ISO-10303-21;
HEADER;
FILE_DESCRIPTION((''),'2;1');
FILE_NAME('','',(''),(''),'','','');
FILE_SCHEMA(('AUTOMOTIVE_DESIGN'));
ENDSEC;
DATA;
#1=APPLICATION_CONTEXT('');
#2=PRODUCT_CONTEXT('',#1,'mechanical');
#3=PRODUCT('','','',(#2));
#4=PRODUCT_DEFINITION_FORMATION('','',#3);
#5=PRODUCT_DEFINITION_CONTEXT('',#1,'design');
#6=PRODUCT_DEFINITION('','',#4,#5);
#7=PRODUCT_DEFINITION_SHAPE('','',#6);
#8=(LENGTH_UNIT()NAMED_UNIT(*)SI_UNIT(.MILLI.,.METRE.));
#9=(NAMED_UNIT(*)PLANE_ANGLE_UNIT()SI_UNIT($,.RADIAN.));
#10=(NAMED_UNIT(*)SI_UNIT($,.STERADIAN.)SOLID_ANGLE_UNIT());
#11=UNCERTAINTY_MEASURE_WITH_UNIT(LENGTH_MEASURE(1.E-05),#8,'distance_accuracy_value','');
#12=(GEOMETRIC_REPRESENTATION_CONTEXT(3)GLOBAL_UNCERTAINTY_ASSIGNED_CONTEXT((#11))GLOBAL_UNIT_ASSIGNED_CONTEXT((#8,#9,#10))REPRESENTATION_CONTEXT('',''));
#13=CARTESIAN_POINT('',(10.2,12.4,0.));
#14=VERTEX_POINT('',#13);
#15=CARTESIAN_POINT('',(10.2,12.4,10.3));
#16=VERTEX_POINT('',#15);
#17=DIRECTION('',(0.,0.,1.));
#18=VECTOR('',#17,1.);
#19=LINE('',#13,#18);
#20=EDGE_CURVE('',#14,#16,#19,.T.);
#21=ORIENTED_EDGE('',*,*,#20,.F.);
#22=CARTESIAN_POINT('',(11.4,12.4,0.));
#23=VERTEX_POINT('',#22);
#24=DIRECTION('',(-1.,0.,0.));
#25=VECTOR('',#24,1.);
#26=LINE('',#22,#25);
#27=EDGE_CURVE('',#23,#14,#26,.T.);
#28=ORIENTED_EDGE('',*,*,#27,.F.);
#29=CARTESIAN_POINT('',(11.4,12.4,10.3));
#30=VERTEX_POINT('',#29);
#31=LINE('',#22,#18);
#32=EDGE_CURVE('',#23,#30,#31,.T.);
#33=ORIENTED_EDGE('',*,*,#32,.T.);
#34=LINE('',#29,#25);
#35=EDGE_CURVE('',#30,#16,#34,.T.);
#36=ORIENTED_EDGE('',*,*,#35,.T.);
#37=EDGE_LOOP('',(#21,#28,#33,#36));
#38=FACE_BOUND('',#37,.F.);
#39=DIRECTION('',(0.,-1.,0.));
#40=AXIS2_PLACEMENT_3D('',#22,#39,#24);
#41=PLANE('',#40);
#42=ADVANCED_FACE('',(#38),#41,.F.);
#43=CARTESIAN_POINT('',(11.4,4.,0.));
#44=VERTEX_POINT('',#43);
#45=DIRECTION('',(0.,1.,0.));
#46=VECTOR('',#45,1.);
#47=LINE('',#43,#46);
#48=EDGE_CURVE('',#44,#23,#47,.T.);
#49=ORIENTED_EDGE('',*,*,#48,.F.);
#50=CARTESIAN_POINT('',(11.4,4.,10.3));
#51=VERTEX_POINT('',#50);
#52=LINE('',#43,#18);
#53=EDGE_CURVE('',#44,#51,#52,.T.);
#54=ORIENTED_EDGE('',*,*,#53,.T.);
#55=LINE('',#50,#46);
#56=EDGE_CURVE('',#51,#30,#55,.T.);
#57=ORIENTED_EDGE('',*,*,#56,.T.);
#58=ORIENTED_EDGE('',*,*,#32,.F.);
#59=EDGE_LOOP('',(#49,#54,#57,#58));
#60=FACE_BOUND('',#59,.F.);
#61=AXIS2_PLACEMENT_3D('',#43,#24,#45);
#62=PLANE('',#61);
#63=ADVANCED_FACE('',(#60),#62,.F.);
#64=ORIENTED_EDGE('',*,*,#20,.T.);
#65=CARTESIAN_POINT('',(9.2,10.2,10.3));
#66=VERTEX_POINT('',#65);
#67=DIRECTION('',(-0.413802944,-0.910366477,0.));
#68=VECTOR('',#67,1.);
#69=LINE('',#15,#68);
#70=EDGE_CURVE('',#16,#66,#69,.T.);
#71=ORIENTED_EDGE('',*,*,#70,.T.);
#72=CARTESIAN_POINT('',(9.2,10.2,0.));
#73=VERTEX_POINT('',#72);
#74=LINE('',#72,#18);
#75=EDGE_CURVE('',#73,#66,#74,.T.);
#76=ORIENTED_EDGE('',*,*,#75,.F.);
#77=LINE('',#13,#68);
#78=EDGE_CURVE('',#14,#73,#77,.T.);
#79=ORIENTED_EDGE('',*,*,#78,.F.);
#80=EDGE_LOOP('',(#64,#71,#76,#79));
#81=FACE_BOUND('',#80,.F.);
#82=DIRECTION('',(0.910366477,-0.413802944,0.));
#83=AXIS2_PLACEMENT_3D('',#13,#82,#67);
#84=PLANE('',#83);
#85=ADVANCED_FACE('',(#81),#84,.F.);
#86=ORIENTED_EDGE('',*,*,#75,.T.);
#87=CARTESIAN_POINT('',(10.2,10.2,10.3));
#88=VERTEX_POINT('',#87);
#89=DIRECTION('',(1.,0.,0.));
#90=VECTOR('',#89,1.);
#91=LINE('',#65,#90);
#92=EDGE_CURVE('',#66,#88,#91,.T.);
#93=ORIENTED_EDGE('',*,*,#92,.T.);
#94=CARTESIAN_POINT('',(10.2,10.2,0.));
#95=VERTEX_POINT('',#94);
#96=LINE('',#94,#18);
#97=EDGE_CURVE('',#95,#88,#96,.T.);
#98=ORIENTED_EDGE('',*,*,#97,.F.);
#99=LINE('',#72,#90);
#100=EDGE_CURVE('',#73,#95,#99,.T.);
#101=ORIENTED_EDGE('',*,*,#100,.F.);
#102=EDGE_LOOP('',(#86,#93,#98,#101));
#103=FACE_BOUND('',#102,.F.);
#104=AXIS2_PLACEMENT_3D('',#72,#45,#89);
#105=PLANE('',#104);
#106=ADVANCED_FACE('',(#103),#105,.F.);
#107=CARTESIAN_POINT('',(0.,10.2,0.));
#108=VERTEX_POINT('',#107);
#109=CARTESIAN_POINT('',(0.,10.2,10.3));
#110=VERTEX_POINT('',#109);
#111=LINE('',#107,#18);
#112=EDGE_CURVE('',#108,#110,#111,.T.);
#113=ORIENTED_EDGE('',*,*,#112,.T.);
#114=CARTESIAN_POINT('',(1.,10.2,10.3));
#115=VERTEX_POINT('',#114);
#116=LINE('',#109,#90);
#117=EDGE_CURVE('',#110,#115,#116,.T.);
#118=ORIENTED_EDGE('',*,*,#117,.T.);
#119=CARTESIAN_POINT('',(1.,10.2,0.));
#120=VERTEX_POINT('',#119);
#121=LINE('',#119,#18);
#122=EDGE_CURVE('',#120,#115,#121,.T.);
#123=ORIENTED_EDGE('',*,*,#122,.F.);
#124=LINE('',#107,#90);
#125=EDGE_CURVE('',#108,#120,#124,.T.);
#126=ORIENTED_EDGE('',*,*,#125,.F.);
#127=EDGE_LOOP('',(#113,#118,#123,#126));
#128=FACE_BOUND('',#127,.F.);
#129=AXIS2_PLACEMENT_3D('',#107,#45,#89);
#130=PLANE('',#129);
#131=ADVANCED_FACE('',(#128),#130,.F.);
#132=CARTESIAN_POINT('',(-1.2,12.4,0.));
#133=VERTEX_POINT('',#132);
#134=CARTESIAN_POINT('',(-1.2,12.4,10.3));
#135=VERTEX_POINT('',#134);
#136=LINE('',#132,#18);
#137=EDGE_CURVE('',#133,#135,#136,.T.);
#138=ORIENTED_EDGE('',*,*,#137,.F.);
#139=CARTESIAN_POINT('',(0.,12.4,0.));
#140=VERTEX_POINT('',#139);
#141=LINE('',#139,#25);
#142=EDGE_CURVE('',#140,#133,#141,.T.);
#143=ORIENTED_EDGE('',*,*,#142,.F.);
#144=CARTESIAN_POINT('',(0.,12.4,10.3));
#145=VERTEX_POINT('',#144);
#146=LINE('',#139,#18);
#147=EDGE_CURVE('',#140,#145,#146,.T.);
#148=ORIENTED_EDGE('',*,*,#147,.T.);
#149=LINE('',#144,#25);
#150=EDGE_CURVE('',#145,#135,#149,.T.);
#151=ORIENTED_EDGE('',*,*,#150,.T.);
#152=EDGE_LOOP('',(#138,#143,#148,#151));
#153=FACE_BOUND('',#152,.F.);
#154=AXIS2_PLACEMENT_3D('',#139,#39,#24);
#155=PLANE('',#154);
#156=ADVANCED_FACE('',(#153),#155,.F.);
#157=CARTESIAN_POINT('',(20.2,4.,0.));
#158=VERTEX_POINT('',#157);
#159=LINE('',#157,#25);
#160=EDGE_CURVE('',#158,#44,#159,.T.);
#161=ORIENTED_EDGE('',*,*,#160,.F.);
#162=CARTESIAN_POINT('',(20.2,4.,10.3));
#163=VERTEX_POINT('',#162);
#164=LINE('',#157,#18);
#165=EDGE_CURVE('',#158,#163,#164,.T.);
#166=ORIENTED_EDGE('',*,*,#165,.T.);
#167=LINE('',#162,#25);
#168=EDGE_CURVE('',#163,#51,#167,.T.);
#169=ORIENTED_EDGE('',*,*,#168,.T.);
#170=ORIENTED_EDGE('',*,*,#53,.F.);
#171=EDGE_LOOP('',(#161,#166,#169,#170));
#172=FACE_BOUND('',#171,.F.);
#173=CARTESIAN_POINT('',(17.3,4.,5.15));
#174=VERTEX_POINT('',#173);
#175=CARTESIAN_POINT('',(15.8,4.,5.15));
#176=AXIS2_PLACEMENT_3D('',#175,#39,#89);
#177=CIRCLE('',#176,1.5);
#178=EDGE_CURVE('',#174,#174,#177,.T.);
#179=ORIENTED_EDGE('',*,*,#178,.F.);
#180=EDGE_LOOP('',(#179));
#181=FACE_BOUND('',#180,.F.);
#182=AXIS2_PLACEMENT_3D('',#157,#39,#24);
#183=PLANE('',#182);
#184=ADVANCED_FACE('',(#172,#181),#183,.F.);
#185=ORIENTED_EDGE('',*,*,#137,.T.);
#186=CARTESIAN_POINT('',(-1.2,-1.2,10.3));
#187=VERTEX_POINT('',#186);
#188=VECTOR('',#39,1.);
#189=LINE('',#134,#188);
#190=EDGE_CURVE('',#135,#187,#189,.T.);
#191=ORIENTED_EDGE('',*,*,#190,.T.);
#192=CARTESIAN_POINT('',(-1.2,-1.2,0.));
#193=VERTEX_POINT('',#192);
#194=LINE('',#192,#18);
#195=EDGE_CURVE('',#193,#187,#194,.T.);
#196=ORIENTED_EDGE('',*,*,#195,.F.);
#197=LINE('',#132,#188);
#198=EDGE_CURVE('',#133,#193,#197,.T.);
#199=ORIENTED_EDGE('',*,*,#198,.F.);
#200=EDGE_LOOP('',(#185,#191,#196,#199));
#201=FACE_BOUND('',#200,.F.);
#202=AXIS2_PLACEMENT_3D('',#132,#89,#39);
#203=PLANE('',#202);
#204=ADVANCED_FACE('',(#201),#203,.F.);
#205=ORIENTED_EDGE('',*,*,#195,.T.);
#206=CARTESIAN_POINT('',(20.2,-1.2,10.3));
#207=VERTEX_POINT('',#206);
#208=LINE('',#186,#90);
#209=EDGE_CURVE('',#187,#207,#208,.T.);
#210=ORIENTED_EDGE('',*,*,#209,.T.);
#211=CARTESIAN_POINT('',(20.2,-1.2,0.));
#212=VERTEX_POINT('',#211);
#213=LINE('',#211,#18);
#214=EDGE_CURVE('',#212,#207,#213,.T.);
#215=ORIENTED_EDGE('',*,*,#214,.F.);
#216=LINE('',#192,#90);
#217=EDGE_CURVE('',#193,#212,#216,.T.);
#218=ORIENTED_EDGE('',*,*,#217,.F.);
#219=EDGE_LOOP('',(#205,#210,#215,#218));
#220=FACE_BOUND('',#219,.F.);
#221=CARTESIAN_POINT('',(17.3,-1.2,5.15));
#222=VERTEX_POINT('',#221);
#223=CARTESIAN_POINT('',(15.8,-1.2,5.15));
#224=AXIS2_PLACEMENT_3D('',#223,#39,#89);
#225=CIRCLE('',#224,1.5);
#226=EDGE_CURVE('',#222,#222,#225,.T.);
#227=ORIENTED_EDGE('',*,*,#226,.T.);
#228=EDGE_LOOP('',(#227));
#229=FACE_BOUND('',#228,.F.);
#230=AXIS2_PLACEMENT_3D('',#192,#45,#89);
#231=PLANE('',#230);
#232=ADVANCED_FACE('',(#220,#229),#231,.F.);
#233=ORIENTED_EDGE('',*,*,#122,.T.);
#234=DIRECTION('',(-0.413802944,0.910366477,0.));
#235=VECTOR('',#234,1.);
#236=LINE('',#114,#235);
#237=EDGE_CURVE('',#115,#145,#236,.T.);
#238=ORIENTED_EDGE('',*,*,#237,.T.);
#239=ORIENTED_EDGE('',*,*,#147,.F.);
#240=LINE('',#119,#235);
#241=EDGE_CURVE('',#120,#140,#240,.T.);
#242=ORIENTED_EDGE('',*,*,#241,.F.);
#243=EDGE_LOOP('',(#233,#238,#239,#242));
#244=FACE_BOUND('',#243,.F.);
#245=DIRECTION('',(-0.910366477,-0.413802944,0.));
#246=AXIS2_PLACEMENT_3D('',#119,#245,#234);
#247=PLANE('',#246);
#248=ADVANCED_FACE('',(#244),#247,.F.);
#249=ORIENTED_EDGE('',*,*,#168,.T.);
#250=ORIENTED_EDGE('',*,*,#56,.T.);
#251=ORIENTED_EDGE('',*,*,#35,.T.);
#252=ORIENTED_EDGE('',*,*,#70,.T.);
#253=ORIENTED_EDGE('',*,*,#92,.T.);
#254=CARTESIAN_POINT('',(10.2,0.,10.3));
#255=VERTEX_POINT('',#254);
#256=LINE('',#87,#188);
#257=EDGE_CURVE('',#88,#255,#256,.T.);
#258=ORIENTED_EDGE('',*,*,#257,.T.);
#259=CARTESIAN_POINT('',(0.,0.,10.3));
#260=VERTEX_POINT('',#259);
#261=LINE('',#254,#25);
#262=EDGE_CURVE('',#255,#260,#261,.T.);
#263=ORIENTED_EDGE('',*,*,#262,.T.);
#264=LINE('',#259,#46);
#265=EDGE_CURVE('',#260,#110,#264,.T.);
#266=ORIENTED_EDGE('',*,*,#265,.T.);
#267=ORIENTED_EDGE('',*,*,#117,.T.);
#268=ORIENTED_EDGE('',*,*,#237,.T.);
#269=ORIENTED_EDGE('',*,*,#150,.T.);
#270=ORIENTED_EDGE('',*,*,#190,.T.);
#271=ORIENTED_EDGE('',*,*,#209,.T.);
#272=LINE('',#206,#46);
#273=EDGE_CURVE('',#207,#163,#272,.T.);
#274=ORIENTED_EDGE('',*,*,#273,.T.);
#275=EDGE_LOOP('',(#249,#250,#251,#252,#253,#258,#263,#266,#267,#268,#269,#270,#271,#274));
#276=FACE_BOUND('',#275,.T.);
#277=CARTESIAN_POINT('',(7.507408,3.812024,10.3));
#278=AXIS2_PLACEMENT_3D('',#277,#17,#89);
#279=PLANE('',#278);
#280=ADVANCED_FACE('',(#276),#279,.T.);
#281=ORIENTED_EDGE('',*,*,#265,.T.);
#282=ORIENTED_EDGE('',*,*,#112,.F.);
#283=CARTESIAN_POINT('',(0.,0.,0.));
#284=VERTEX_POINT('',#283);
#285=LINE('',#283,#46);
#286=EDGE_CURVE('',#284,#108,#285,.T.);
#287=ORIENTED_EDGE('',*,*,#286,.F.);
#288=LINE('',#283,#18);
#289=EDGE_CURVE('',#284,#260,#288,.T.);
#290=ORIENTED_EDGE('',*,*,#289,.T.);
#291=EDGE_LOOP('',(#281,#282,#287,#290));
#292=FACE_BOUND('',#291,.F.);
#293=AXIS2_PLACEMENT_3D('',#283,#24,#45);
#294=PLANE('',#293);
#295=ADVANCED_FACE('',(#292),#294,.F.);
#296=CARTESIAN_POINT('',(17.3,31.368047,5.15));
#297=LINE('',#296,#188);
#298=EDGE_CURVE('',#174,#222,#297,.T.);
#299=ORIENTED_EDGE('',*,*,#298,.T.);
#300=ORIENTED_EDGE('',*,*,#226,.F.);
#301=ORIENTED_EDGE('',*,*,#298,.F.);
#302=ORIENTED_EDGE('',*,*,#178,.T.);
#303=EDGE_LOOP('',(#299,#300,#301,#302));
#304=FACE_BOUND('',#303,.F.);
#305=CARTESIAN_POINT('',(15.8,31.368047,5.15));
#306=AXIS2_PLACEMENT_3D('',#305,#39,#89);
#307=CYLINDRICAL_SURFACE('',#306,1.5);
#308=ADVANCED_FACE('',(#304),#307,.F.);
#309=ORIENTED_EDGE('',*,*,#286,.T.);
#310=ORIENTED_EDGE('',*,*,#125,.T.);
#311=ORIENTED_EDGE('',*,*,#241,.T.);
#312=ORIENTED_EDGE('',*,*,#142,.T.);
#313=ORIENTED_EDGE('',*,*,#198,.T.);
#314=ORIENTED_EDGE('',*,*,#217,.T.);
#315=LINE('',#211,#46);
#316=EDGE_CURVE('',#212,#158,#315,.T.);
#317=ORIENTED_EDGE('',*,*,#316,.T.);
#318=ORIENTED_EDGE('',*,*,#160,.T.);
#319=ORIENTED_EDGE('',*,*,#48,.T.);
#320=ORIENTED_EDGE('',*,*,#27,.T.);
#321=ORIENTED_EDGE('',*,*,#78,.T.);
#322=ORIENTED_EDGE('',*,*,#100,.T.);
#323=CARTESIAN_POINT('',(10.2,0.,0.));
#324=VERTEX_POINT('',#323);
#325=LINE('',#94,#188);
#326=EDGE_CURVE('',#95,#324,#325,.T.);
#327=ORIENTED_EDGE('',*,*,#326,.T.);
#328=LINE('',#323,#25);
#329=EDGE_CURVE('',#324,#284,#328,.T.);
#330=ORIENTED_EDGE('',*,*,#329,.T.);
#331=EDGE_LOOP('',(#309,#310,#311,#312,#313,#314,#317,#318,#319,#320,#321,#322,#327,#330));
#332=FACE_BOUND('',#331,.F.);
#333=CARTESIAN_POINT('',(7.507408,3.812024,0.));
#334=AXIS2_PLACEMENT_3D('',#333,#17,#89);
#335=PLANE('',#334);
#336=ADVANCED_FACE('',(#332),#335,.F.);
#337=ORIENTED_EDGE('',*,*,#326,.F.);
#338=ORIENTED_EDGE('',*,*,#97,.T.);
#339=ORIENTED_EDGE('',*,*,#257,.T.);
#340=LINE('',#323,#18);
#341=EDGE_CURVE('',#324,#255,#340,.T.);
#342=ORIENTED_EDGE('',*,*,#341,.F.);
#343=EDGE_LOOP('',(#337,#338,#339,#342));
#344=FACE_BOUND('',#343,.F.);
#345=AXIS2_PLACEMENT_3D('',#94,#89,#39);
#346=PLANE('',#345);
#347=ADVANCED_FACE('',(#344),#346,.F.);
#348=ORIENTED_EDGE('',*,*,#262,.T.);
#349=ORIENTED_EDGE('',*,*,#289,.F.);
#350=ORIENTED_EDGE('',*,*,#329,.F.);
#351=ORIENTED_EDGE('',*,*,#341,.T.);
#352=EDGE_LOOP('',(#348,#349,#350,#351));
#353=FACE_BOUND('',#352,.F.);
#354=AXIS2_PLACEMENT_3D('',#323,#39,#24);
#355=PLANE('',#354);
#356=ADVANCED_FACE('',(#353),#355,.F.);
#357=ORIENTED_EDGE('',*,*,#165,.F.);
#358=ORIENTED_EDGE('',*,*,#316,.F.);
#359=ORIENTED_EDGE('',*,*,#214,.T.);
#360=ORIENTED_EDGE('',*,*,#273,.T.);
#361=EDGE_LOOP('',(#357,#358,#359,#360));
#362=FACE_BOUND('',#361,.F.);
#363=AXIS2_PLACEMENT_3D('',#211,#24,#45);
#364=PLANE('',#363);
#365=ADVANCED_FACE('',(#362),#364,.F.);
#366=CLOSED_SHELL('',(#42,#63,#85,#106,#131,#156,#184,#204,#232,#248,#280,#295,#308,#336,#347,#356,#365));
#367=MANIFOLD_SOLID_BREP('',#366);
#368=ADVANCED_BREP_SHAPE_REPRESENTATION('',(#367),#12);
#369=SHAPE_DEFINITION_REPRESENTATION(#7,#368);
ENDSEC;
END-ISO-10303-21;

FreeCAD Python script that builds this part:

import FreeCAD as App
import Part
import Sketcher


def add_polygon(sketch, points):
    """Adds a closed chain of lines whose ends are joined by coincident constraints."""
    first, n = sketch.GeometryCount, len(points)
    for a, b in zip(points, points[1:] + points[:1]):
        sketch.addGeometry(Part.LineSegment(App.Vector(*a, 0), App.Vector(*b, 0)), False)
    for i in range(n):
        sketch.addConstraint(Sketcher.Constraint("Coincident", first + i, 2, first + (i + 1) % n, 1))

doc = App.newDocument("Part")
body = doc.addObject("PartDesign::Body", "Body")

sketch1 = doc.addObject("Sketcher::SketchObject", "Sketch")
body.addObject(sketch1)
sketch1.AttachmentSupport = (doc.XY_Plane, [""])
sketch1.MapMode = "FlatFace"
add_polygon(sketch1, [(10.2, 0), (0, 0), (0, 10.2), (1, 10.2), (0, 12.4), (-1.2, 12.4), (-1.2, -1.2), (20.2, -1.2), (20.2, 4), (11.4, 4), (11.4, 12.4), (10.2, 12.4), (9.2, 10.2), (10.2, 10.2)])
sketch1.addConstraint(Sketcher.Constraint("Horizontal", 0))
sketch1.addConstraint(Sketcher.Constraint("Vertical", 1))
sketch1.addConstraint(Sketcher.Constraint("Horizontal", 2))
sketch1.addConstraint(Sketcher.Constraint("Horizontal", 4))
sketch1.addConstraint(Sketcher.Constraint("Vertical", 5))
sketch1.addConstraint(Sketcher.Constraint("Horizontal", 6))
sketch1.addConstraint(Sketcher.Constraint("Vertical", 7))
sketch1.addConstraint(Sketcher.Constraint("Horizontal", 8))
sketch1.addConstraint(Sketcher.Constraint("Vertical", 9))
sketch1.addConstraint(Sketcher.Constraint("Horizontal", 10))
sketch1.addConstraint(Sketcher.Constraint("Horizontal", 12))
sketch1.addConstraint(Sketcher.Constraint("Vertical", 13))
sketch1.addConstraint(Sketcher.Constraint("Coincident", 0, 2, -1, 1))
sketch1.addConstraint(Sketcher.Constraint("PointOnObject", 3, 2, -2))
sketch1.addConstraint(Sketcher.Constraint("Horizontal", 4, 2, 9, 2))
sketch1.addConstraint(Sketcher.Constraint("Horizontal", 2, 2, 11, 2))
sketch1.addConstraint(Sketcher.Constraint("Vertical", 10, 2, 12, 2))
sketch1.addConstraint(Sketcher.Constraint("Equal", 4, 10))
sketch1.addConstraint(Sketcher.Constraint("Equal", 2, 12))
sketch1.addConstraint(Sketcher.Constraint("Equal", 0, 1))
sketch1.addConstraint(Sketcher.Constraint("DistanceX", 2, 1, 2, 2, 1.0))
sketch1.addConstraint(Sketcher.Constraint("DistanceX", 0, 2, 0, 1, 10.2))
sketch1.addConstraint(Sketcher.Constraint("DistanceX", 4, 2, 4, 1, 1.2))
sketch1.addConstraint(Sketcher.Constraint("DistanceX", 6, 1, 6, 2, 21.4))
sketch1.addConstraint(Sketcher.Constraint("DistanceY", 5, 2, 5, 1, 13.6))
sketch1.addConstraint(Sketcher.Constraint("DistanceY", 7, 1, 7, 2, 5.2))
sketch1.addConstraint(Sketcher.Constraint("DistanceY", -1, 1, 7, 2, 4.0))
pad1 = doc.addObject("PartDesign::Pad", "Pad")
body.addObject(pad1)
pad1.Profile = sketch1
pad1.Length = 10.3

sketch2 = doc.addObject("Sketcher::SketchObject", "Sketch001")
body.addObject(sketch2)
sketch2.AttachmentSupport = (doc.XZ_Plane, [""])
sketch2.MapMode = "FlatFace"
sketch2.AttachmentOffset = App.Placement(App.Vector(0, 0, -4), App.Rotation())
sketch2.addGeometry(Part.Circle(App.Vector(15.8, 5.2, 0), App.Vector(0, 0, 1), 1.5), False)
sketch2.addConstraint(Sketcher.Constraint("Diameter", 0, 3.0))
sketch2.addConstraint(Sketcher.Constraint("DistanceX", -1, 1, 0, 3, 15.8))
sketch2.addConstraint(Sketcher.Constraint("DistanceY", -1, 1, 0, 3, 5.15))
doc.recompute()
hole = doc.addObject("PartDesign::Hole", "Hole")
body.addObject(hole)
hole.Profile = sketch2
hole.ThreadType = "None"
hole.Diameter = 3
hole.DepthType = "ThroughAll"
hole.Reversed = True

doc.recompute()
